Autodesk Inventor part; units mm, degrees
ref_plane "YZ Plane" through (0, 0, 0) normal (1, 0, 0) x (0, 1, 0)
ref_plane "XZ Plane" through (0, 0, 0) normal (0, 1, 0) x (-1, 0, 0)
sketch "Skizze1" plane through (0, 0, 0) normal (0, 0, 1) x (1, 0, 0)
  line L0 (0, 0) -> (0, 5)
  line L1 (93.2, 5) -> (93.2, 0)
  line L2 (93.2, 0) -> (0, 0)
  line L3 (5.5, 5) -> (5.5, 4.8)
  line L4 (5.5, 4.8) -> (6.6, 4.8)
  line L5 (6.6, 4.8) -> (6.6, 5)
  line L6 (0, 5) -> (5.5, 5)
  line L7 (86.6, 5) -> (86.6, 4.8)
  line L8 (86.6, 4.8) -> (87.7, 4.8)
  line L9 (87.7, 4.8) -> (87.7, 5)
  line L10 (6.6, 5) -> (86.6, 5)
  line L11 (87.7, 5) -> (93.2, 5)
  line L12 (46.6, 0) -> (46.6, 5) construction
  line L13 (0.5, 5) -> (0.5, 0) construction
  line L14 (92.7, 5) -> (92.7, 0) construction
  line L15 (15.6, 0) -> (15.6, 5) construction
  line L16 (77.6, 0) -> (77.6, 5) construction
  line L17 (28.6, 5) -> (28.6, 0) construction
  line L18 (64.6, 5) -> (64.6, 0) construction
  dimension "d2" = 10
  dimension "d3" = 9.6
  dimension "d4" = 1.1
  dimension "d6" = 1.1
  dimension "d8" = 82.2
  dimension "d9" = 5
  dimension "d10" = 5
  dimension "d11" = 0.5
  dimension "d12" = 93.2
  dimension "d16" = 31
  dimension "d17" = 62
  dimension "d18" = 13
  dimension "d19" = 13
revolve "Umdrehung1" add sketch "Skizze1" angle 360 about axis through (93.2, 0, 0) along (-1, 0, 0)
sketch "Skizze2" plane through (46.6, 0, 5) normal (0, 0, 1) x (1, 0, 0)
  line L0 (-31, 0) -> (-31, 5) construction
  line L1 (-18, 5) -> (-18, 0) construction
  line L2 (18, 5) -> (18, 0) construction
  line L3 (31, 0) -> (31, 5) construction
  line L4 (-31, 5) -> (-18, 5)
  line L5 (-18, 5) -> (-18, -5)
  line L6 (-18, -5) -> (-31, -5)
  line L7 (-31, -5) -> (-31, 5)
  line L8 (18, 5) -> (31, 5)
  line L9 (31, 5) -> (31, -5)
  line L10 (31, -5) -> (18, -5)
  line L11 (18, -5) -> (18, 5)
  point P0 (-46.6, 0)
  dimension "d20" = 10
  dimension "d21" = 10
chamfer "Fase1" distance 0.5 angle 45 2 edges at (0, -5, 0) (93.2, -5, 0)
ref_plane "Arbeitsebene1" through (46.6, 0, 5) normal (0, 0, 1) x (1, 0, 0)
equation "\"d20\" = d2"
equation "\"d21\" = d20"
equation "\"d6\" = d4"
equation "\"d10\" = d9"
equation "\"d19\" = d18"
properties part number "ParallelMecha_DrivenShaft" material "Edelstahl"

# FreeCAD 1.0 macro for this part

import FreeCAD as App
import Part
import Sketcher

V = App.Vector
Q = App.Units.Quantity


def edges_at(feature, points):
    """Names of the edges that pass closest to the given points."""
    edges = feature.Shape.Edges
    near = lambda p: min(range(len(edges)), key=lambda i: edges[i].distToShape(Part.Vertex(*p))[0])
    return sorted({f"Edge{near(p) + 1}" for p in points})


def add_polygon(sketch, points):
    """Adds a closed chain of lines whose ends are joined by coincident constraints."""
    first, n = sketch.GeometryCount, len(points)
    for a, b in zip(points, points[1:] + points[:1]):
        sketch.addGeometry(Part.LineSegment(App.Vector(*a, 0), App.Vector(*b, 0)), False)
    for i in range(n):
        sketch.addConstraint(Sketcher.Constraint("Coincident", first + i, 2, first + (i + 1) % n, 1))

doc = App.newDocument("Part")
body = doc.addObject("PartDesign::Body", "Body")

# Sketch on XY plane
sketch1 = body.newObject("Sketcher::SketchObject", "Sketch")
sketch1.AttachmentSupport = (doc.getObject("XY_Plane"), [""])
sketch1.MapMode = "FlatFace"
add_polygon(sketch1, [(0, 5), (0, 0), (93.2, 0), (93.2, 5), (87.7, 5), (87.7, 4.8), (86.6, 4.8), (86.6, 5), (6.6, 5), (6.6, 4.8), (5.5, 4.8), (5.5, 5)])  # lines 0-11
sketch1.addConstraint(Sketcher.Constraint("Vertical", 0))
sketch1.addConstraint(Sketcher.Constraint("Horizontal", 1))
sketch1.addConstraint(Sketcher.Constraint("Vertical", 2))
sketch1.addConstraint(Sketcher.Constraint("Horizontal", 3))
sketch1.addConstraint(Sketcher.Constraint("Vertical", 4))
sketch1.addConstraint(Sketcher.Constraint("Horizontal", 5))
sketch1.addConstraint(Sketcher.Constraint("Vertical", 6))
sketch1.addConstraint(Sketcher.Constraint("Horizontal", 7))
sketch1.addConstraint(Sketcher.Constraint("Vertical", 8))
sketch1.addConstraint(Sketcher.Constraint("Horizontal", 9))
sketch1.addConstraint(Sketcher.Constraint("Vertical", 10))
sketch1.addConstraint(Sketcher.Constraint("Horizontal", 11))
sketch1.addConstraint(Sketcher.Constraint("Coincident", 0, 2, -1, 1))
sketch1.addConstraint(Sketcher.Constraint("Horizontal", 3, 2, 6, 2))
sketch1.addConstraint(Sketcher.Constraint("Horizontal", 5, 2, 8, 2))
sketch1.addConstraint(Sketcher.Constraint("Horizontal", 7, 2, 10, 2))
sketch1.addConstraint(Sketcher.Constraint("Equal", 5, 9))
sketch1.addConstraint(Sketcher.Constraint("Equal", 3, 11))
sketch1.addConstraint(Sketcher.Constraint("DistanceY", 0, 2, 0, 1, Q("5 mm")))
sketch1.addConstraint(Sketcher.Constraint("DistanceX", 1, 1, 1, 2, Q("93.2 mm")))
sketch1.addConstraint(Sketcher.Constraint("DistanceX", 5, 2, 5, 1, Q("1.1 mm")))
sketch1.addConstraint(Sketcher.Constraint("DistanceX", 7, 2, 7, 1, Q("80 mm")))
sketch1.addConstraint(Sketcher.Constraint("DistanceY", 4, 2, 4, 1, Q("0.2 mm")))
revolution = body.newObject("PartDesign::Revolution", "Revolution")
revolution.Profile = sketch1
revolution.ReferenceAxis = (sketch1, ["H_Axis"])
revolution.Angle = 360
doc.recompute()

chamfer = body.newObject("PartDesign::Chamfer", "Chamfer")
chamfer.Base = (revolution, edges_at(revolution, [(0, -5, 0), (93.2, -5, 0)]))
chamfer.Size = 0.5

doc.recompute()
